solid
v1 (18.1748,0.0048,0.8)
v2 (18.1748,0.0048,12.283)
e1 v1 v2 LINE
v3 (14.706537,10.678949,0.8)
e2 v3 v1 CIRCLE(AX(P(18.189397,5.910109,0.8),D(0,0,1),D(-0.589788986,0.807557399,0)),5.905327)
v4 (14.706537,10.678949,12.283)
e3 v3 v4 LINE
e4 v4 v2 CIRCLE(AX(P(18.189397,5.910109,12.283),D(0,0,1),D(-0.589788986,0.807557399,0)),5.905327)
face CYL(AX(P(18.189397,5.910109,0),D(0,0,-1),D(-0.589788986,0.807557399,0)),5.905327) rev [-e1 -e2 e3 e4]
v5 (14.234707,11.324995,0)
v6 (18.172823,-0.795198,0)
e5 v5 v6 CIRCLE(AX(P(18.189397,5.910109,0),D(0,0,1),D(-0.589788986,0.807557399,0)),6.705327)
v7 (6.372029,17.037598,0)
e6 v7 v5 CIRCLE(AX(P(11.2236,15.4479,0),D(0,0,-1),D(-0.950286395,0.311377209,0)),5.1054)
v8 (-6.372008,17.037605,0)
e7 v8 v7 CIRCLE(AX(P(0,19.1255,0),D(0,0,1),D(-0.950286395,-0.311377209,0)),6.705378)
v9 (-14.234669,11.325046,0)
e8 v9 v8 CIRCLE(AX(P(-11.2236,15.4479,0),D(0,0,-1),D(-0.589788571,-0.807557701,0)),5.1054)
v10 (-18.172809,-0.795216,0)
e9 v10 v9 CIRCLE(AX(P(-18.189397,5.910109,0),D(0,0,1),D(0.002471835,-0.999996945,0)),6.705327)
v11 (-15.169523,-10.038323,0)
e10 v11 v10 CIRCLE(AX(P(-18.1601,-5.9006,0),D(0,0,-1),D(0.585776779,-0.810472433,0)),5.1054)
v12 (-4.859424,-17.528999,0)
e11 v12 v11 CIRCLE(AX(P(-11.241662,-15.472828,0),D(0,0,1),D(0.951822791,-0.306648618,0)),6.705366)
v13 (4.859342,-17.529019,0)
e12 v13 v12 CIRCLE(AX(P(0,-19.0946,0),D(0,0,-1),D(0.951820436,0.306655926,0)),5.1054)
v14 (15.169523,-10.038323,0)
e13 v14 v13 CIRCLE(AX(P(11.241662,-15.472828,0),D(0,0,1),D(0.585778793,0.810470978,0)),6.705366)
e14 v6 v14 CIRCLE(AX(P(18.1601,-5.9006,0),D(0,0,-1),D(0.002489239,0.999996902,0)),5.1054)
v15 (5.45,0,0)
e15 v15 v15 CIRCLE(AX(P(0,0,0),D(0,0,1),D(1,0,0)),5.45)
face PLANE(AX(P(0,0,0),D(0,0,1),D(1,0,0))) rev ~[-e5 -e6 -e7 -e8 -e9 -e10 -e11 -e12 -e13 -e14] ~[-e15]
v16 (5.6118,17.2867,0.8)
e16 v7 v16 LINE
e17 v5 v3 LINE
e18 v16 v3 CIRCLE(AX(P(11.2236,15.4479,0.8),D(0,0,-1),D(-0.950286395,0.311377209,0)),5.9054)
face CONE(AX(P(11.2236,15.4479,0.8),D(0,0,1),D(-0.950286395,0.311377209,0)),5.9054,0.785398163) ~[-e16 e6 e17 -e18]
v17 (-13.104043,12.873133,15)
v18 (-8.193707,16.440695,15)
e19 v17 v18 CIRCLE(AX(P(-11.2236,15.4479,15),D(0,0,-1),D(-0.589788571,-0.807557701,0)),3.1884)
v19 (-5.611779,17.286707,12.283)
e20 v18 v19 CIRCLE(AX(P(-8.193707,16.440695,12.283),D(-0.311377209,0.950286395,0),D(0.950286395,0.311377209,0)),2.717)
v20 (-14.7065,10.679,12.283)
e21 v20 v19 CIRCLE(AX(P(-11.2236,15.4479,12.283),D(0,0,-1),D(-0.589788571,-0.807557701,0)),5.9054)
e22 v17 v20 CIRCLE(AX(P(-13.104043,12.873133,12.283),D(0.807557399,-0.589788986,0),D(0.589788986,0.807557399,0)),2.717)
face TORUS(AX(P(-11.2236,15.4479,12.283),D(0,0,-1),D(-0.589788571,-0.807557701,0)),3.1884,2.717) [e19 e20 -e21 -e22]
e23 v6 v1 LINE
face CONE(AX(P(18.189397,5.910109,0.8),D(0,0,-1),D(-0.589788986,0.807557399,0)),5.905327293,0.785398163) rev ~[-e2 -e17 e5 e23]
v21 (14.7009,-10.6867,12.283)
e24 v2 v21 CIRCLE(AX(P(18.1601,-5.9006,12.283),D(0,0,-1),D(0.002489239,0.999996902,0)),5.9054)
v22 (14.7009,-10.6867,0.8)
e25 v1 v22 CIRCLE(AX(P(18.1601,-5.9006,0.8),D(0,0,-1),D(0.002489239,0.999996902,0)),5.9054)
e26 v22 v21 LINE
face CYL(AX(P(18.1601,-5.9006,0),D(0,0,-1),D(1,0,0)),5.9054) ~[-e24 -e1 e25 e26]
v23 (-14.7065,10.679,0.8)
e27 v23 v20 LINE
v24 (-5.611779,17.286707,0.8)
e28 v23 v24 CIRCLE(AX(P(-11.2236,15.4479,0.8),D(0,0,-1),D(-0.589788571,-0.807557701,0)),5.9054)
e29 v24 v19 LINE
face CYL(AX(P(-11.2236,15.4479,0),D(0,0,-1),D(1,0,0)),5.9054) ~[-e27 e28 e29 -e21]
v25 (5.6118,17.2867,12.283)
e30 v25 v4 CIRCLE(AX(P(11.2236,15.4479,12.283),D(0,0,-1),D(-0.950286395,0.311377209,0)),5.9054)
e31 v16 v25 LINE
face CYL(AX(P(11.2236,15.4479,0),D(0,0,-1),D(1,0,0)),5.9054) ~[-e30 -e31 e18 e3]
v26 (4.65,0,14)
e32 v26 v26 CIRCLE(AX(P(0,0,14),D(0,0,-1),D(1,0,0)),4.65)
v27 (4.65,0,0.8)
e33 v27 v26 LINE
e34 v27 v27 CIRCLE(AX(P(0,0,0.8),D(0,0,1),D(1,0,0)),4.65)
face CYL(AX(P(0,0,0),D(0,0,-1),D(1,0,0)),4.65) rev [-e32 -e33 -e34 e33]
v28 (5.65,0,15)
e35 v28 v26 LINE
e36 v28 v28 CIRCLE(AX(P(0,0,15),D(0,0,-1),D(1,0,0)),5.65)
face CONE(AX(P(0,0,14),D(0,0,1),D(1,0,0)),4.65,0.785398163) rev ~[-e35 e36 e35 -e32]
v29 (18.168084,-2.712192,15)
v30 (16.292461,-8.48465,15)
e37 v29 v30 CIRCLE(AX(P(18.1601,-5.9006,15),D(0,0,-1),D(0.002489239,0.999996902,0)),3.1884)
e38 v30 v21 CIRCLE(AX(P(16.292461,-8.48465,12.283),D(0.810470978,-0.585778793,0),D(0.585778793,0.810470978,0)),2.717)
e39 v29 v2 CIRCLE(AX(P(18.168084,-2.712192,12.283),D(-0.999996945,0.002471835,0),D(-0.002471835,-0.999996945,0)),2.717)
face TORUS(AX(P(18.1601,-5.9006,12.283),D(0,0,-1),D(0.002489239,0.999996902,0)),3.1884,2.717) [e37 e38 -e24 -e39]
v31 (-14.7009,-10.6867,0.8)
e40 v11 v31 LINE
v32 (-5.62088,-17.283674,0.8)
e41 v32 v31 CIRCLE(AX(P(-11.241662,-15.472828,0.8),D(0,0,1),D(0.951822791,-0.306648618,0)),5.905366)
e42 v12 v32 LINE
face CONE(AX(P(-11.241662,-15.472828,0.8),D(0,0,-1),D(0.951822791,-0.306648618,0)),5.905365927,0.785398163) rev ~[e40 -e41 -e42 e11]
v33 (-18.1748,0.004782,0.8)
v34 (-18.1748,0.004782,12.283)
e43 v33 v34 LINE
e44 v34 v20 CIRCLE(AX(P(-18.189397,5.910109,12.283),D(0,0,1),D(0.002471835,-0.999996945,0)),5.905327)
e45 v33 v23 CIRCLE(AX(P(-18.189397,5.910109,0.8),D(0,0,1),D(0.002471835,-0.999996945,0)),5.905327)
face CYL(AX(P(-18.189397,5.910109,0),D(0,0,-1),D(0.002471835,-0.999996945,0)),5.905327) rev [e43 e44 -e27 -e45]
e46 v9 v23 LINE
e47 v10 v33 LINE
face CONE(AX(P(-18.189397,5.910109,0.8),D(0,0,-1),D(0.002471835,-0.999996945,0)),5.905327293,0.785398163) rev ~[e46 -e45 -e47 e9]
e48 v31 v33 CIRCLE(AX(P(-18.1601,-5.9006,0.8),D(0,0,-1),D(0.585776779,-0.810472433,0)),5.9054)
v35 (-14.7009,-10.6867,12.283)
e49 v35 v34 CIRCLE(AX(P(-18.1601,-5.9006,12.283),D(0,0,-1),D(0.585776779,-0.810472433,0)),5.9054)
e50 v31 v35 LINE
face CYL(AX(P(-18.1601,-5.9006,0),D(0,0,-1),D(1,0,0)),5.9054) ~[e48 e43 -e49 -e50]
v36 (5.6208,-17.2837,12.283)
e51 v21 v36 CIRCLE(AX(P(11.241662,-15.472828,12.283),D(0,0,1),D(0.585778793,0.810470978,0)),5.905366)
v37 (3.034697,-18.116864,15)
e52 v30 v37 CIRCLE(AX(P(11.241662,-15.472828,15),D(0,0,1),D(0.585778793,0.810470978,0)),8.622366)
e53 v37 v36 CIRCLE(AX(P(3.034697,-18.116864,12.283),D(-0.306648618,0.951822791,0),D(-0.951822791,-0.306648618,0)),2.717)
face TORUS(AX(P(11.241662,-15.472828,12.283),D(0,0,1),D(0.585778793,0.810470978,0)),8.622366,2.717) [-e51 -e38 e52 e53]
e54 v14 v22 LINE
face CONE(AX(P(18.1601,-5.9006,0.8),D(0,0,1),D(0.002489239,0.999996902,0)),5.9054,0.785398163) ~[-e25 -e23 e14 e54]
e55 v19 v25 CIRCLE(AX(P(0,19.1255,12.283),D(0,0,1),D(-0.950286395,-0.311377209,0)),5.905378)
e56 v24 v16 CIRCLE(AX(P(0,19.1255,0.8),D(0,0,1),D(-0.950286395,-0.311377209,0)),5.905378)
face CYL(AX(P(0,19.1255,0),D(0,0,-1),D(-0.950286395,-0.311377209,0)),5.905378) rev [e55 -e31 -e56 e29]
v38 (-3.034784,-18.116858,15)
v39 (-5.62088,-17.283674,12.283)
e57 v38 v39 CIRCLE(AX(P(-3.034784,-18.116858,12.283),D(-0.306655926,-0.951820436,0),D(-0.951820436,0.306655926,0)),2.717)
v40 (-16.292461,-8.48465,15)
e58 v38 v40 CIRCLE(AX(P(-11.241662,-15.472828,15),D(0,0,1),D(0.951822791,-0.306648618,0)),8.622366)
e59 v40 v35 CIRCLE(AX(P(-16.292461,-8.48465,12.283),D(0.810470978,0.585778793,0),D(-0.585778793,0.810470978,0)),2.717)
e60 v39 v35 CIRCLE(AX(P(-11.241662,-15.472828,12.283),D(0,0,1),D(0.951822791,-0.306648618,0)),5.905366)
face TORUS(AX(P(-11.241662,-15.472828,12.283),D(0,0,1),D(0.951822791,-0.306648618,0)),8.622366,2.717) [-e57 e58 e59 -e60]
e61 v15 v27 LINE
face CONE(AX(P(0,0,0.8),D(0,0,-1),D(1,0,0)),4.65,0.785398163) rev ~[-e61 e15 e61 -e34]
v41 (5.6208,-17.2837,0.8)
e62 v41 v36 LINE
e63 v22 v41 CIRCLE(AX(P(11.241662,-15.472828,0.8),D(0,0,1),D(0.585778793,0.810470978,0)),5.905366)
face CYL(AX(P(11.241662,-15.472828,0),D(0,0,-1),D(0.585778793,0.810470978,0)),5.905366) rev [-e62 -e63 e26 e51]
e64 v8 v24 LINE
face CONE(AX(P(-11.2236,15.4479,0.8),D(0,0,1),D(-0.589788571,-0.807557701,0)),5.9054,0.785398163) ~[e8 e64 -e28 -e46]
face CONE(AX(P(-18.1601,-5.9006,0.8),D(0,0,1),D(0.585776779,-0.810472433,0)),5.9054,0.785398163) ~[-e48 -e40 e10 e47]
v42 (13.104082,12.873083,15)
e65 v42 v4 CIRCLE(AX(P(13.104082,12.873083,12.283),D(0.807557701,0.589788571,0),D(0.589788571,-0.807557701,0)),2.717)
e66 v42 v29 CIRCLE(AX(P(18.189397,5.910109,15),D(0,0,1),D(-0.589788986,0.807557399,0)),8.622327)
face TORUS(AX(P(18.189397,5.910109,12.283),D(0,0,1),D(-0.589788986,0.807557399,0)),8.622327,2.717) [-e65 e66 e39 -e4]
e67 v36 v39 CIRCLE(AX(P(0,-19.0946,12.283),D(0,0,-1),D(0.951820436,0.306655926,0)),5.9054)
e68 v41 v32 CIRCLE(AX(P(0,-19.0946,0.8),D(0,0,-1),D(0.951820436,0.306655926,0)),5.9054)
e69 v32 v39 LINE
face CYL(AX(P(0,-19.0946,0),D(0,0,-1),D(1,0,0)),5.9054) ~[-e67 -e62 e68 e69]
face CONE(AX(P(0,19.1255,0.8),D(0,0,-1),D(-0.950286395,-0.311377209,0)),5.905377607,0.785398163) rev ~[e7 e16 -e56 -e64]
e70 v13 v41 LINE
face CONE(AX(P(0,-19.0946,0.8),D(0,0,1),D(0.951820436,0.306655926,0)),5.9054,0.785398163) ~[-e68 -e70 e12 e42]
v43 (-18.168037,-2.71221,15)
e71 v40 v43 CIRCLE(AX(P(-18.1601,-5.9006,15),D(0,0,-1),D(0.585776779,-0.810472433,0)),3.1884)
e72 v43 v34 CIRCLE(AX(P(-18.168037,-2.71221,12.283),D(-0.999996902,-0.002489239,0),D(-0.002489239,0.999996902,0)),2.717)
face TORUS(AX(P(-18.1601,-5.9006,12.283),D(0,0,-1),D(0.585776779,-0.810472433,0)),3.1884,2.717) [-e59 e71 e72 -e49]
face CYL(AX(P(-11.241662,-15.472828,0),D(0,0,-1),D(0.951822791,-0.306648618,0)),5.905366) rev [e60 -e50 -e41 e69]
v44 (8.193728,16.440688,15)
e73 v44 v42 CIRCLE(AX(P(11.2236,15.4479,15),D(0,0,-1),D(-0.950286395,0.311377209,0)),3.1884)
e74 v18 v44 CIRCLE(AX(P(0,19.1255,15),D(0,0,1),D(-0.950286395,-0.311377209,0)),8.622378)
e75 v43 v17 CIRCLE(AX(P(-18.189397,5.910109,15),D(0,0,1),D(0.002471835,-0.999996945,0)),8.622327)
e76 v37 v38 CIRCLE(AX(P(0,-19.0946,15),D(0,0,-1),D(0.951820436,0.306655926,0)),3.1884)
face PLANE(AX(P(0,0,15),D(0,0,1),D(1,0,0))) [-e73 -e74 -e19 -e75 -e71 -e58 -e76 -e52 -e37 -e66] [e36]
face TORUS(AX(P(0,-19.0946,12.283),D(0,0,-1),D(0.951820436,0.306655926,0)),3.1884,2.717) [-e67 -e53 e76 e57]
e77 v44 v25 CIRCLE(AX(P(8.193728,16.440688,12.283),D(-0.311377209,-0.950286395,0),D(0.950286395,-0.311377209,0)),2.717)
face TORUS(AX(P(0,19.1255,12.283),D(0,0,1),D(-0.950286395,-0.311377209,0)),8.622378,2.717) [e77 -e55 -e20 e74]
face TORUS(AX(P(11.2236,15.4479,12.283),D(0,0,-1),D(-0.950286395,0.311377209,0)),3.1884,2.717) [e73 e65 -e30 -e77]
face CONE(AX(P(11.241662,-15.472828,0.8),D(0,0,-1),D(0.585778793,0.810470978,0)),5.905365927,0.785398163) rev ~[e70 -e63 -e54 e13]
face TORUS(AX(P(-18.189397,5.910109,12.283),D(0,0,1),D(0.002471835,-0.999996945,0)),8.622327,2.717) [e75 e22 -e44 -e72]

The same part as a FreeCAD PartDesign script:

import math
import FreeCAD as App
import Part
import Sketcher
from FreeCAD import Vector
Q = App.Units.Quantity


def edges_at(feature, points):
    """Names of the edges that pass closest to the given points."""
    edges = feature.Shape.Edges
    near = lambda p: min(range(len(edges)), key=lambda i: edges[i].distToShape(Part.Vertex(*p))[0])
    return sorted({f"Edge{near(p) + 1}" for p in points})

doc = App.newDocument("Part")
body = doc.addObject("PartDesign::Body", "Body")

sketch1 = doc.addObject("Sketcher::SketchObject", "Sketch")
body.addObject(sketch1)
sketch1.AttachmentSupport = (doc.XY_Plane, [""])
sketch1.MapMode = "FlatFace"
sketch1.addGeometry([
    Part.ArcOfCircle(Part.Circle(Vector(0, -19.1, 0), Vector(0, 0, 1), 5.9), math.radians(162), math.radians(378)),
    Part.ArcOfCircle(Part.Circle(Vector(11.2, -15.5, 0), Vector(0, 0, 1), 5.9), math.radians(54), math.radians(198)),
    Part.ArcOfCircle(Part.Circle(Vector(18.2, -5.9, 0), Vector(0, 0, 1), 5.9), math.radians(-126), math.radians(90)),
    Part.ArcOfCircle(Part.Circle(Vector(18.2, 5.9, 0), Vector(0, 0, 1), 5.9), math.radians(126), math.radians(270)),
    Part.ArcOfCircle(Part.Circle(Vector(11.2, 15.4, 0), Vector(0, 0, 1), 5.9), math.radians(-54), math.radians(162)),
    Part.ArcOfCircle(Part.Circle(Vector(0, 19.1, 0), Vector(0, 0, 1), 5.9), math.radians(-162), math.radians(-18)),
    Part.ArcOfCircle(Part.Circle(Vector(-11.2, 15.4, 0), Vector(0, 0, 1), 5.9), math.radians(18), math.radians(234)),
    Part.ArcOfCircle(Part.Circle(Vector(-18.2, 5.9, 0), Vector(0, 0, 1), 5.9), math.radians(-90), math.radians(54)),
    Part.ArcOfCircle(Part.Circle(Vector(-18.2, -5.9, 0), Vector(0, 0, 1), 5.9), math.radians(90), math.radians(306)),
    Part.ArcOfCircle(Part.Circle(Vector(-11.2, -15.5, 0), Vector(0, 0, 1), 5.9), math.radians(-18), math.radians(126)),
    Part.Circle(Vector(0, 0, 0), Vector(0, 0, 1), 4.7),
], False)
sketch1.addConstraint([
    Sketcher.Constraint("Tangent", 0, 2, 1, 2),
    Sketcher.Constraint("Tangent", 1, 1, 2, 1),
    Sketcher.Constraint("Tangent", 2, 2, 3, 2),
    Sketcher.Constraint("Tangent", 3, 1, 4, 1),
    Sketcher.Constraint("Tangent", 4, 2, 5, 2),
    Sketcher.Constraint("Tangent", 5, 1, 6, 1),
    Sketcher.Constraint("Tangent", 6, 2, 7, 2),
    Sketcher.Constraint("Tangent", 7, 1, 8, 1),
    Sketcher.Constraint("Tangent", 8, 2, 9, 2),
    Sketcher.Constraint("Tangent", 9, 1, 0, 1),
    Sketcher.Constraint("Coincident", 10, 3, -1, 1),
    Sketcher.Constraint("Equal", 0, 1),
    Sketcher.Constraint("Equal", 1, 2),
    Sketcher.Constraint("Equal", 2, 3),
    Sketcher.Constraint("Equal", 3, 4),
    Sketcher.Constraint("Equal", 4, 5),
    Sketcher.Constraint("Equal", 5, 6),
    Sketcher.Constraint("Equal", 6, 7),
    Sketcher.Constraint("Equal", 7, 8),
    Sketcher.Constraint("Equal", 8, 9),
    Sketcher.Constraint("Symmetric", 4, 3, 6, 3, -2),
    Sketcher.Constraint("Symmetric", 2, 3, 8, 3, -2),
    Sketcher.Constraint("PointOnObject", 0, 3, -2),
    Sketcher.Constraint("Diameter", 10, Q("9.3 mm")),
    Sketcher.Constraint("Radius", 0, Q("5.9054 mm")),
    Sketcher.Constraint("DistanceX", -1, 1, 2, 3, Q("18.16 mm")),
    Sketcher.Constraint("DistanceY", -1, 1, 3, 3, Q("5.91 mm")),
    Sketcher.Constraint("DistanceY", 0, 3, 5, 3, Q("38.22 mm")),
    Sketcher.Constraint("DistanceY", -1, 1, 4, 3, Q("15.448 mm")),
    Sketcher.Constraint("DistanceX", -1, 1, 0, 2, Q("5.621 mm")),
])
pad1 = doc.addObject("PartDesign::Pad", "Pad")
body.addObject(pad1)
pad1.Profile = sketch1
pad1.Length = 15
doc.recompute()

fillet = doc.addObject("PartDesign::Fillet", "Fillet")
body.addObject(fillet)
fillet.Base = (pad1, edges_at(pad1, [
    (7.771, -10.695, 15),
    (23.776, -7.725, 15),
    (12.573, 4.085, 15),
    (14.695, 20.225, 15),
    (0, 13.22, 15),
    (-14.695, 20.225, 15),
    (-12.573, 4.085, 15),
    (-23.776, -7.725, 15),
    (-7.771, -10.695, 15),
    (0, -25, 15),
]))
fillet.Radius = 2.717
doc.recompute()

chamfer = doc.addObject("PartDesign::Chamfer", "Chamfer")
body.addObject(chamfer)
chamfer.Base = (fillet, edges_at(fillet, [
    (7.771, -10.695, 0),
    (23.776, -7.725, 0),
    (12.573, 4.085, 0),
    (14.695, 20.225, 0),
    (0, 13.22, 0),
    (-14.695, 20.225, 0),
    (-12.573, 4.085, 0),
    (-23.776, -7.725, 0),
    (-7.771, -10.695, 0),
    (0, -25, 0),
    (-4.335, 1.681, 0),
]))
chamfer.Size = 0.8
doc.recompute()

chamfer2 = doc.addObject("PartDesign::Chamfer", "Chamfer001")
body.addObject(chamfer2)
chamfer2.Base = (chamfer, edges_at(chamfer, [(-4.335, 1.681, 15)]))
chamfer2.Size = 1

doc.recompute()
